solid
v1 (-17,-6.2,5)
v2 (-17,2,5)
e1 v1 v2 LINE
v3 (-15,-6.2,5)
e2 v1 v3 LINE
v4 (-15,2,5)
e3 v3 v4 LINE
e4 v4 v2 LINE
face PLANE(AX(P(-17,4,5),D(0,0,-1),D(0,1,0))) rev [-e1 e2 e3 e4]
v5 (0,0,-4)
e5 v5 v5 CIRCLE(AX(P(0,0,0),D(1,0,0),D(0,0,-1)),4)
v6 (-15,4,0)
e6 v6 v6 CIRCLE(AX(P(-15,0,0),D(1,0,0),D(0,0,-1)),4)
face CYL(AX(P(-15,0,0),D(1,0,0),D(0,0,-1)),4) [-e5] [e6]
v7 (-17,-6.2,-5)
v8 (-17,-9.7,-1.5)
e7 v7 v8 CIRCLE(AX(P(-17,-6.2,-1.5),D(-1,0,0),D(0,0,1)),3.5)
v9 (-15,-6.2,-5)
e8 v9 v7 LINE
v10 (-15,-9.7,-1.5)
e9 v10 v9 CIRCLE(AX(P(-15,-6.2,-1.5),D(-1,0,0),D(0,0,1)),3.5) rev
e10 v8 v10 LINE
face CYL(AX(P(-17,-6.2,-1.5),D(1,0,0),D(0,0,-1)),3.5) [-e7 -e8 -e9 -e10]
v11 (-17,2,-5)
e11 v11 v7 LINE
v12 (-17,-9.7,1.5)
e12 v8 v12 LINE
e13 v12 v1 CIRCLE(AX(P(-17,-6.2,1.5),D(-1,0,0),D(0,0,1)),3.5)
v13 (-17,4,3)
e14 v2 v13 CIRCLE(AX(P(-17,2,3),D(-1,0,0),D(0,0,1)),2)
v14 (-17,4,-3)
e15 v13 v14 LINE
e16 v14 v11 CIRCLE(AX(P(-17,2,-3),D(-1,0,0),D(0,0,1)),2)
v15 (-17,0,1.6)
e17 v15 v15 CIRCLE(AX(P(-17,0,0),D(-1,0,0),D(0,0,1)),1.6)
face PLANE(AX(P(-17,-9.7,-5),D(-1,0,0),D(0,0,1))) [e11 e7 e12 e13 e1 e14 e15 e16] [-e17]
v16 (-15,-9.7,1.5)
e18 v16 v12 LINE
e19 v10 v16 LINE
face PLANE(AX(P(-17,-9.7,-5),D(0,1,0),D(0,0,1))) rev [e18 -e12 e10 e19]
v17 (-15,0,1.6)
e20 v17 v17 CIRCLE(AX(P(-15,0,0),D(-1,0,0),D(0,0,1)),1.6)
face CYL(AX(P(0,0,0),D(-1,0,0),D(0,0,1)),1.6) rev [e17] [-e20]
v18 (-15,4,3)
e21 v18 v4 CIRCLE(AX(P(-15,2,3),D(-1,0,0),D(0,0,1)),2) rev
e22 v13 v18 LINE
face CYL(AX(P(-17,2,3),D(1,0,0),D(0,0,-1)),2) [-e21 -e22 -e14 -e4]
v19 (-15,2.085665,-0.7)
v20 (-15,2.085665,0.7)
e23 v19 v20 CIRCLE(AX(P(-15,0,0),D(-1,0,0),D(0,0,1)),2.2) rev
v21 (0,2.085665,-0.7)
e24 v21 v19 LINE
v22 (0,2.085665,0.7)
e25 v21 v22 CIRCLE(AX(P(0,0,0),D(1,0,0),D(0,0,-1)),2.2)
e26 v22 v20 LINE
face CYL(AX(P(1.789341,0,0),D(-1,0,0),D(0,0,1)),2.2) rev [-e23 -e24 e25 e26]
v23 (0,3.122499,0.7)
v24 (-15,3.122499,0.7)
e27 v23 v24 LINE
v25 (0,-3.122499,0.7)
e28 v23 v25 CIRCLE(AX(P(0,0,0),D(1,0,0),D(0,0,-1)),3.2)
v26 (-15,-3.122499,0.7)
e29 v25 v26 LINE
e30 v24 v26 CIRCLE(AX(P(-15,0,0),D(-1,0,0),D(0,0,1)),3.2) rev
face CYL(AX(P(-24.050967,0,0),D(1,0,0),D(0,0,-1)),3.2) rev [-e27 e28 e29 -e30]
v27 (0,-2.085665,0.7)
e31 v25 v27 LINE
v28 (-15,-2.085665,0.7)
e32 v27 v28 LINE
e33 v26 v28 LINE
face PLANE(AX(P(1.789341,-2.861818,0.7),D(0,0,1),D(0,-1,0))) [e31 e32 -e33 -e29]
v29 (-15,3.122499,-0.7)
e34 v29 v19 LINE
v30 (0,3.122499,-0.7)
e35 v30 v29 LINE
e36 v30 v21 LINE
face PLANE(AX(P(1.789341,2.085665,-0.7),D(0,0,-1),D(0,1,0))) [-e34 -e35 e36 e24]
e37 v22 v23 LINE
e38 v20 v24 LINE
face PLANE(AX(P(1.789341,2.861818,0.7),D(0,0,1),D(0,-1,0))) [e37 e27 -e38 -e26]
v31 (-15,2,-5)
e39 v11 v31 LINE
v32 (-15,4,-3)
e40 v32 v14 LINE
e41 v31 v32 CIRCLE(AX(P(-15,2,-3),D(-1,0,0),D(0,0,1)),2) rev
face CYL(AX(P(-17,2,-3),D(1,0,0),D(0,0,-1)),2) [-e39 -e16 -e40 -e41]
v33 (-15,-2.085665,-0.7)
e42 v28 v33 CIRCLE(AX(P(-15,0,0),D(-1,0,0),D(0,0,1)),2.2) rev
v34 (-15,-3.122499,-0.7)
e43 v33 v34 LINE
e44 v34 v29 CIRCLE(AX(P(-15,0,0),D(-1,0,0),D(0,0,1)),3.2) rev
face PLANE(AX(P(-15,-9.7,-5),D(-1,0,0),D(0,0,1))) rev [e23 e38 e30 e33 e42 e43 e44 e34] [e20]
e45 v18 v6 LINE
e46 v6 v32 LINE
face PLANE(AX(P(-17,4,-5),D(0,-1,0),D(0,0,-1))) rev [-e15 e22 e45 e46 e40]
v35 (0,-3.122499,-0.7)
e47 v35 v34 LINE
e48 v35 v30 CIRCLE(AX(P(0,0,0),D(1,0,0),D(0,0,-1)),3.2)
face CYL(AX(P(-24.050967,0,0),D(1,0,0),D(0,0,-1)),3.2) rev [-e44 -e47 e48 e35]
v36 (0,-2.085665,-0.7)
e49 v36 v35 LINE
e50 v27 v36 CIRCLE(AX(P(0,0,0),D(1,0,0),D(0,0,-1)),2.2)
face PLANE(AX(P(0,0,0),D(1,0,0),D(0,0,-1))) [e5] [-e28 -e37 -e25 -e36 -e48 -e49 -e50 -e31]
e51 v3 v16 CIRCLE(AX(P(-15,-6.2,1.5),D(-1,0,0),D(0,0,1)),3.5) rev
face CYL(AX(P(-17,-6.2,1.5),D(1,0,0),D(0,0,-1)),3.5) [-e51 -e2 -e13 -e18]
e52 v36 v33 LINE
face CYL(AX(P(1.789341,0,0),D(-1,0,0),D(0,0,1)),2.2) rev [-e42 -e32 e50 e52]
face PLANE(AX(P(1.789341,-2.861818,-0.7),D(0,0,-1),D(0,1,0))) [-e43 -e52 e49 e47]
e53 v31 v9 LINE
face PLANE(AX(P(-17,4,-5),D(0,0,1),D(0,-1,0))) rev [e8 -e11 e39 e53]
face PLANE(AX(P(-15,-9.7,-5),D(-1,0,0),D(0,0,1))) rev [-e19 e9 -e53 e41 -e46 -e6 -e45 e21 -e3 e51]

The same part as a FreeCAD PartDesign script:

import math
import FreeCAD as App
import Part
import Sketcher
from FreeCAD import Vector
Q = App.Units.Quantity


def edges_at(feature, points):
    """Names of the edges that pass closest to the given points."""
    edges = feature.Shape.Edges
    near = lambda p: min(range(len(edges)), key=lambda i: edges[i].distToShape(Part.Vertex(*p))[0])
    return sorted({f"Edge{near(p) + 1}" for p in points})


def add_polygon(sketch, points):
    """Adds a closed chain of lines whose ends are joined by coincident constraints."""
    first, n = sketch.GeometryCount, len(points)
    for a, b in zip(points, points[1:] + points[:1]):
        sketch.addGeometry(Part.LineSegment(App.Vector(*a, 0), App.Vector(*b, 0)), False)
    for i in range(n):
        sketch.addConstraint(Sketcher.Constraint("Coincident", first + i, 2, first + (i + 1) % n, 1))

doc = App.newDocument("Part")
body = doc.addObject("PartDesign::Body", "Body")

sketch1 = body.newObject("Sketcher::SketchObject", "Sketch")
sketch1.AttachmentSupport = (doc.getObject("YZ_Plane"), [""])
sketch1.MapMode = "FlatFace"
sketch1.addGeometry(Part.Circle(Vector(0, 0, 0), Vector(0, 0, 1), 4), False)
sketch1.addConstraint([
    Sketcher.Constraint("Coincident", 0, 3, -1, 1),
    Sketcher.Constraint("Diameter", 0, Q("8 mm")),
])
pad1 = body.newObject("PartDesign::Pad", "Pad")
pad1.Profile = sketch1
pad1.Length = 15
pad1.Reversed = True

sketch2 = body.newObject("Sketcher::SketchObject", "Sketch001")
sketch2.AttachmentSupport = (doc.getObject("YZ_Plane"), [""])
sketch2.MapMode = "FlatFace"
sketch2.AttachmentOffset = App.Placement(Vector(0, 0, -15), App.Rotation())
add_polygon(sketch2, [(4, -5), (-10, -5), (-10, 5), (4, 5)])
sketch2.addConstraint([
    Sketcher.Constraint("Horizontal", 0),
    Sketcher.Constraint("Vertical", 1),
    Sketcher.Constraint("Horizontal", 2),
    Sketcher.Constraint("Vertical", 3),
    Sketcher.Constraint("DistanceY", 1, 1, 1, 2, Q("10 mm")),
    Sketcher.Constraint("DistanceX", 0, 2, 0, 1, Q("13.7 mm")),
    Sketcher.Constraint("DistanceY", 0, 2, -1, 1, Q("5 mm")),
    Sketcher.Constraint("DistanceX", -1, 1, 2, 2, Q("4 mm")),
])
pad2 = body.newObject("PartDesign::Pad", "Pad001")
pad2.Profile = sketch2
pad2.Length = 2
pad2.Reversed = True

sketch3 = body.newObject("Sketcher::SketchObject", "Sketch002")
sketch3.AttachmentSupport = (doc.getObject("YZ_Plane"), [""])
sketch3.MapMode = "FlatFace"
sketch3.addGeometry(Part.Circle(Vector(0, 0, 0), Vector(0, 0, 1), 3.2), False)
sketch3.addConstraint([
    Sketcher.Constraint("Coincident", 0, 3, -1, 1),
    Sketcher.Constraint("Diameter", 0, Q("6.4 mm")),
])
pocket1 = body.newObject("PartDesign::Pocket", "Pocket")
pocket1.Profile = sketch3
pocket1.Length = 15

sketch4 = body.newObject("Sketcher::SketchObject", "Sketch003")
sketch4.AttachmentSupport = (doc.getObject("YZ_Plane"), [""])
sketch4.MapMode = "FlatFace"
sketch4.AttachmentOffset = App.Placement(Vector(0, 0, -17), App.Rotation())
sketch4.addGeometry(Part.Circle(Vector(0, 0, 0), Vector(0, 0, 1), 1.6), False)
sketch4.addConstraint([
    Sketcher.Constraint("Coincident", 0, 3, -1, 1),
    Sketcher.Constraint("Diameter", 0, Q("3.2 mm")),
])
pocket2 = body.newObject("PartDesign::Pocket", "Pocket001")
pocket2.Profile = sketch4
pocket2.Type = "ThroughAll"
pocket2.Reversed = True

sketch5 = body.newObject("Sketcher::SketchObject", "Sketch004")
sketch5.AttachmentSupport = (doc.getObject("YZ_Plane"), [""])
sketch5.MapMode = "FlatFace"
sketch5.addGeometry([
    Part.ArcOfCircle(Part.Circle(Vector(0, 0, 0), Vector(0, 0, 1), 2.2), math.radians(161), math.radians(199)),
    Part.LineSegment(Vector(-2.1, -0.7, 0), Vector(-3.1, -0.7, 0)),
    Part.ArcOfCircle(Part.Circle(Vector(0, 0, 0), Vector(0, 0, 1), 3.2), math.radians(167), math.radians(193)),
    Part.LineSegment(Vector(-3.1, 0.7, 0), Vector(-2.1, 0.7, 0)),
    Part.LineSegment(Vector(3.1, -0.7, 0), Vector(2.1, -0.7, 0)),
    Part.ArcOfCircle(Part.Circle(Vector(0, 0, 0), Vector(0, 0, 1), 2.2), math.radians(-19), math.radians(19)),
    Part.LineSegment(Vector(2.1, 0.7, 0), Vector(3.1, 0.7, 0)),
    Part.ArcOfCircle(Part.Circle(Vector(0, 0, 0), Vector(0, 0, 1), 3.2), math.radians(-13), math.radians(13)),
], False)
sketch5.addConstraint([
    Sketcher.Constraint("Coincident", 0, 2, 1, 1),
    Sketcher.Constraint("Coincident", 1, 2, 2, 2),
    Sketcher.Constraint("Coincident", 2, 1, 3, 1),
    Sketcher.Constraint("Coincident", 3, 2, 0, 1),
    Sketcher.Constraint("Coincident", 4, 2, 5, 1),
    Sketcher.Constraint("Coincident", 5, 2, 6, 1),
    Sketcher.Constraint("Coincident", 6, 2, 7, 2),
    Sketcher.Constraint("Coincident", 7, 1, 4, 1),
    Sketcher.Constraint("Horizontal", 1),
    Sketcher.Constraint("Horizontal", 3),
    Sketcher.Constraint("Horizontal", 4),
    Sketcher.Constraint("Horizontal", 6),
    Sketcher.Constraint("Coincident", 0, 3, -1, 1),
    Sketcher.Constraint("Coincident", 2, 3, -1, 1),
    Sketcher.Constraint("Coincident", 5, 3, -1, 1),
    Sketcher.Constraint("Coincident", 7, 3, -1, 1),
    Sketcher.Constraint("Equal", 0, 5),
    Sketcher.Constraint("Equal", 2, 7),
    Sketcher.Constraint("Horizontal", 1, 2, 4, 2),
    Sketcher.Constraint("Horizontal", 3, 2, 5, 2),
    Sketcher.Constraint("Vertical", 1, 2, 2, 1),
    Sketcher.Constraint("Radius", 0, Q("2.2 mm")),
    Sketcher.Constraint("Radius", 2, Q("3.2 mm")),
    Sketcher.Constraint("DistanceY", 0, 2, -1, 1, Q("0.7 mm")),
])
pad3 = body.newObject("PartDesign::Pad", "Pad002")
pad3.Profile = sketch5
pad3.Length = 17
pad3.Reversed = True
doc.recompute()

fillet = body.newObject("PartDesign::Fillet", "Fillet")
fillet.Base = (pad3, edges_at(pad3, [(-16, 4, -5), (-16, 4, 5)]))
fillet.Radius = 2
doc.recompute()

fillet2 = body.newObject("PartDesign::Fillet", "Fillet001")
fillet2.Base = (fillet, edges_at(fillet, [(-16, -9.7, -5), (-16, -9.7, 5)]))
fillet2.Radius = 3.5

doc.recompute()
